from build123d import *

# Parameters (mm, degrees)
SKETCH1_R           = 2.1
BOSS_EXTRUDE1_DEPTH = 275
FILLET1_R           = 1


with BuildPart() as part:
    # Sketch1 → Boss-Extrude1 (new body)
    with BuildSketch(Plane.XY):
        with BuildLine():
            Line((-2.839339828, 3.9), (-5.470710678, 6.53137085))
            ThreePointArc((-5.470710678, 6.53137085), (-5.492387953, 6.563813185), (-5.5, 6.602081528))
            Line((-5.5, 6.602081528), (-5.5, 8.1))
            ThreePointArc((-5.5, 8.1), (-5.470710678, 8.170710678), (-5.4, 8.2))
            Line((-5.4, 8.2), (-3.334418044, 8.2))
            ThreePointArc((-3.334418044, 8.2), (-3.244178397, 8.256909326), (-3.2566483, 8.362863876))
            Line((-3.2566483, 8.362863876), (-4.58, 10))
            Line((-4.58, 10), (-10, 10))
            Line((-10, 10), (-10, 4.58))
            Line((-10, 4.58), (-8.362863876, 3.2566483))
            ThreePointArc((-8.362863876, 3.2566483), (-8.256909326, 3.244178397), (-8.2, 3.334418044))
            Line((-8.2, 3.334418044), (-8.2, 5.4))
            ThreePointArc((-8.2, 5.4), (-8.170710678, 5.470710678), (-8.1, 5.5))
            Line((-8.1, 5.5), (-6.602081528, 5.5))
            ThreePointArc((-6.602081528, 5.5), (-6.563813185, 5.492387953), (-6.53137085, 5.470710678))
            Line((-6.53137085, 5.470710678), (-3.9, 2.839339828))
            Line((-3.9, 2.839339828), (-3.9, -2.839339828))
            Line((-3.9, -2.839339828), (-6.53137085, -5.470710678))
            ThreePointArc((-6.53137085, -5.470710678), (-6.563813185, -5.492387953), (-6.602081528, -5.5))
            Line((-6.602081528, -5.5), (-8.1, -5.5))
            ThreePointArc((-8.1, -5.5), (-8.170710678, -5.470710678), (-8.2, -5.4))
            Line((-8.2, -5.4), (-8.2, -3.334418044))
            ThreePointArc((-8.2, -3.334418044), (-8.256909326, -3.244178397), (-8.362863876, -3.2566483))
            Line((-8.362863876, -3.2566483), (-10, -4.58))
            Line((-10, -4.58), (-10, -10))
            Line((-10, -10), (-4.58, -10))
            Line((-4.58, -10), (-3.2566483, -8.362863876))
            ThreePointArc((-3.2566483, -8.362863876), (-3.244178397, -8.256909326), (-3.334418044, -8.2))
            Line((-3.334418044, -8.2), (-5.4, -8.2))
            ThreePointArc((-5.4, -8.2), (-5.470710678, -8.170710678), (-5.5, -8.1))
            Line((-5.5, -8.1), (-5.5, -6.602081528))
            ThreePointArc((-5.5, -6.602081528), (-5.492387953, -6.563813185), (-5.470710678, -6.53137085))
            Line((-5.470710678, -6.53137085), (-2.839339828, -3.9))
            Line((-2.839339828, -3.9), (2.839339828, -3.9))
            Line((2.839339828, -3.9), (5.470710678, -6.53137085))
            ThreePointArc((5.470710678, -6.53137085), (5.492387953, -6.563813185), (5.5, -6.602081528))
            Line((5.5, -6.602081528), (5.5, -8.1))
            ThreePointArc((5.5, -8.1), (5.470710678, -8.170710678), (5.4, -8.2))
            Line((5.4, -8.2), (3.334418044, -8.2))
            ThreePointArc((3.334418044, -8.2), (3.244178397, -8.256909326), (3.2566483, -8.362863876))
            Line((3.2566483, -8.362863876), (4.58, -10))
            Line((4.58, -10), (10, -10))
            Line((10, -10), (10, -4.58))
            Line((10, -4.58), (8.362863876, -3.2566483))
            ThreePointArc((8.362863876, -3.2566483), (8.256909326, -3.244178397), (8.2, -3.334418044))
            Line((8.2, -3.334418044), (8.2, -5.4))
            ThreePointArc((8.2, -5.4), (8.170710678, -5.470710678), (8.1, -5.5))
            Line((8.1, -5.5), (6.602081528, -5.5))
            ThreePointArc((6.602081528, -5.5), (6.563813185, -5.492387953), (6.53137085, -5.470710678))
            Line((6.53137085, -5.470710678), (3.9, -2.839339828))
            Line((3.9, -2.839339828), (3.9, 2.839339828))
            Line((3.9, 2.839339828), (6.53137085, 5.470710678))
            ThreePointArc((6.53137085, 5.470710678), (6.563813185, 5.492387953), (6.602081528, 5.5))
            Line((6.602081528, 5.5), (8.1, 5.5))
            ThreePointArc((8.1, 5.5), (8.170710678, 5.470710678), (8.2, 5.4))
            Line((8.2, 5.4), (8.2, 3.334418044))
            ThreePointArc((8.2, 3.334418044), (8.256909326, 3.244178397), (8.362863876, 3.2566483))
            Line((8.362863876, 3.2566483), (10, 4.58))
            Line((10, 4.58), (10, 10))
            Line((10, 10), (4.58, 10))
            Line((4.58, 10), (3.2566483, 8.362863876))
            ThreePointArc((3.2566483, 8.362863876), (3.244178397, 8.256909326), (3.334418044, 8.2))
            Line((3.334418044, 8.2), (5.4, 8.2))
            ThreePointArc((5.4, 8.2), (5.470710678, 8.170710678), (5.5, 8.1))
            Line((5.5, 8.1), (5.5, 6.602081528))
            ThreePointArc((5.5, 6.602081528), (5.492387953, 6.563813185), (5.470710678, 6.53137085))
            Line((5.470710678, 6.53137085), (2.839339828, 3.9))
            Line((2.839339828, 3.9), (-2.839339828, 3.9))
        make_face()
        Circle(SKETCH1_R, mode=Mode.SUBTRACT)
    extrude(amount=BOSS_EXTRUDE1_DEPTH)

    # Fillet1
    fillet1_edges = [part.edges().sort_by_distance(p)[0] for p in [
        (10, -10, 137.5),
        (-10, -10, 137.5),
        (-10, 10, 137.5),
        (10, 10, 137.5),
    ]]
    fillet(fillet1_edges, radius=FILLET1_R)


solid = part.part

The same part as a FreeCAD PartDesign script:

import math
import FreeCAD as App
import Part
import Sketcher
from FreeCAD import Vector
Q = App.Units.Quantity


def edges_at(feature, points):
    """Names of the edges that pass closest to the given points."""
    edges = feature.Shape.Edges
    near = lambda p: min(range(len(edges)), key=lambda i: edges[i].distToShape(Part.Vertex(*p))[0])
    return sorted({f"Edge{near(p) + 1}" for p in points})

doc = App.newDocument("Part")
body = doc.addObject("PartDesign::Body", "Body")

sketch1 = body.newObject("Sketcher::SketchObject", "Sketch")
sketch1.AttachmentSupport = (doc.getObject("XY_Plane"), [""])
sketch1.MapMode = "FlatFace"
sketch1.addGeometry(Part.LineSegment(Vector(-2.84, 3.9, 0), Vector(-5.47, 6.53, 0)), False)
sketch1.addGeometry(Part.ArcOfCircle(Part.Circle(Vector(-5.4, 6.6, 0), Vector(0, 0, 1), 0.1), math.radians(-180), math.radians(-135)), False)
sketch1.addGeometry(Part.LineSegment(Vector(-5.5, 6.6, 0), Vector(-5.5, 8.1, 0)), False)
sketch1.addGeometry(Part.ArcOfCircle(Part.Circle(Vector(-5.4, 8.1, 0), Vector(0, 0, 1), 0.1), math.radians(90), math.radians(180)), False)
sketch1.addGeometry(Part.LineSegment(Vector(-5.4, 8.2, 0), Vector(-3.33, 8.2, 0)), False)
sketch1.addGeometry(Part.ArcOfCircle(Part.Circle(Vector(-3.33, 8.3, 0), Vector(0, 0, 1), 0.1), math.radians(-90), math.radians(39)), False)
sketch1.addGeometry(Part.LineSegment(Vector(-3.26, 8.36, 0), Vector(-4.58, 10, 0)), False)
sketch1.addGeometry(Part.LineSegment(Vector(-4.58, 10, 0), Vector(-10, 10, 0)), False)
sketch1.addGeometry(Part.LineSegment(Vector(-10, 10, 0), Vector(-10, 4.58, 0)), False)
sketch1.addGeometry(Part.LineSegment(Vector(-10, 4.58, 0), Vector(-8.36, 3.26, 0)), False)
sketch1.addGeometry(Part.ArcOfCircle(Part.Circle(Vector(-8.3, 3.33, 0), Vector(0, 0, 1), 0.1), math.radians(-129), math.radians(0)), False)
sketch1.addGeometry(Part.LineSegment(Vector(-8.2, 3.33, 0), Vector(-8.2, 5.4, 0)), False)
sketch1.addGeometry(Part.ArcOfCircle(Part.Circle(Vector(-8.1, 5.4, 0), Vector(0, 0, 1), 0.1), math.radians(90), math.radians(180)), False)
sketch1.addGeometry(Part.LineSegment(Vector(-8.1, 5.5, 0), Vector(-6.6, 5.5, 0)), False)
sketch1.addGeometry(Part.ArcOfCircle(Part.Circle(Vector(-6.6, 5.4, 0), Vector(0, 0, 1), 0.1), math.radians(45), math.radians(90)), False)
sketch1.addGeometry(Part.LineSegment(Vector(-6.53, 5.47, 0), Vector(-3.9, 2.84, 0)), False)
sketch1.addGeometry(Part.LineSegment(Vector(-3.9, 2.84, 0), Vector(-3.9, -2.84, 0)), False)
sketch1.addGeometry(Part.LineSegment(Vector(-3.9, -2.84, 0), Vector(-6.53, -5.47, 0)), False)
sketch1.addGeometry(Part.ArcOfCircle(Part.Circle(Vector(-6.6, -5.4, 0), Vector(0, 0, 1), 0.1), math.radians(-90), math.radians(-45)), False)
sketch1.addGeometry(Part.LineSegment(Vector(-6.6, -5.5, 0), Vector(-8.1, -5.5, 0)), False)
sketch1.addGeometry(Part.ArcOfCircle(Part.Circle(Vector(-8.1, -5.4, 0), Vector(0, 0, 1), 0.1), math.radians(180), math.radians(270)), False)
sketch1.addGeometry(Part.LineSegment(Vector(-8.2, -5.4, 0), Vector(-8.2, -3.33, 0)), False)
sketch1.addGeometry(Part.ArcOfCircle(Part.Circle(Vector(-8.3, -3.33, 0), Vector(0, 0, 1), 0.1), math.radians(0), math.radians(129)), False)
sketch1.addGeometry(Part.LineSegment(Vector(-8.36, -3.26, 0), Vector(-10, -4.58, 0)), False)
sketch1.addGeometry(Part.LineSegment(Vector(-10, -4.58, 0), Vector(-10, -10, 0)), False)
sketch1.addGeometry(Part.LineSegment(Vector(-10, -10, 0), Vector(-4.58, -10, 0)), False)
sketch1.addGeometry(Part.LineSegment(Vector(-4.58, -10, 0), Vector(-3.26, -8.36, 0)), False)
sketch1.addGeometry(Part.ArcOfCircle(Part.Circle(Vector(-3.33, -8.3, 0), Vector(0, 0, 1), 0.1), math.radians(-39), math.radians(90)), False)
sketch1.addGeometry(Part.LineSegment(Vector(-3.33, -8.2, 0), Vector(-5.4, -8.2, 0)), False)
sketch1.addGeometry(Part.ArcOfCircle(Part.Circle(Vector(-5.4, -8.1, 0), Vector(0, 0, 1), 0.1), math.radians(180), math.radians(270)), False)
sketch1.addGeometry(Part.LineSegment(Vector(-5.5, -8.1, 0), Vector(-5.5, -6.6, 0)), False)
sketch1.addGeometry(Part.ArcOfCircle(Part.Circle(Vector(-5.4, -6.6, 0), Vector(0, 0, 1), 0.1), math.radians(135), math.radians(180)), False)
sketch1.addGeometry(Part.LineSegment(Vector(-5.47, -6.53, 0), Vector(-2.84, -3.9, 0)), False)
sketch1.addGeometry(Part.LineSegment(Vector(-2.84, -3.9, 0), Vector(2.84, -3.9, 0)), False)
sketch1.addGeometry(Part.LineSegment(Vector(2.84, -3.9, 0), Vector(5.47, -6.53, 0)), False)
sketch1.addGeometry(Part.ArcOfCircle(Part.Circle(Vector(5.4, -6.6, 0), Vector(0, 0, 1), 0.1), math.radians(0), math.radians(45)), False)
sketch1.addGeometry(Part.LineSegment(Vector(5.5, -6.6, 0), Vector(5.5, -8.1, 0)), False)
sketch1.addGeometry(Part.ArcOfCircle(Part.Circle(Vector(5.4, -8.1, 0), Vector(0, 0, 1), 0.1), math.radians(-90), math.radians(0)), False)
sketch1.addGeometry(Part.LineSegment(Vector(5.4, -8.2, 0), Vector(3.33, -8.2, 0)), False)
sketch1.addGeometry(Part.ArcOfCircle(Part.Circle(Vector(3.33, -8.3, 0), Vector(0, 0, 1), 0.1), math.radians(90), math.radians(219)), False)
sketch1.addGeometry(Part.LineSegment(Vector(3.26, -8.36, 0), Vector(4.58, -10, 0)), False)
sketch1.addGeometry(Part.LineSegment(Vector(4.58, -10, 0), Vector(10, -10, 0)), False)
sketch1.addGeometry(Part.LineSegment(Vector(10, -10, 0), Vector(10, -4.58, 0)), False)
sketch1.addGeometry(Part.LineSegment(Vector(10, -4.58, 0), Vector(8.36, -3.26, 0)), False)
sketch1.addGeometry(Part.ArcOfCircle(Part.Circle(Vector(8.3, -3.33, 0), Vector(0, 0, 1), 0.1), math.radians(51), math.radians(180)), False)
sketch1.addGeometry(Part.LineSegment(Vector(8.2, -3.33, 0), Vector(8.2, -5.4, 0)), False)
sketch1.addGeometry(Part.ArcOfCircle(Part.Circle(Vector(8.1, -5.4, 0), Vector(0, 0, 1), 0.1), math.radians(-90), math.radians(0)), False)
sketch1.addGeometry(Part.LineSegment(Vector(8.1, -5.5, 0), Vector(6.6, -5.5, 0)), False)
sketch1.addGeometry(Part.ArcOfCircle(Part.Circle(Vector(6.6, -5.4, 0), Vector(0, 0, 1), 0.1), math.radians(-135), math.radians(-90)), False)
sketch1.addGeometry(Part.LineSegment(Vector(6.53, -5.47, 0), Vector(3.9, -2.84, 0)), False)
sketch1.addGeometry(Part.LineSegment(Vector(3.9, -2.84, 0), Vector(3.9, 2.84, 0)), False)
sketch1.addGeometry(Part.LineSegment(Vector(3.9, 2.84, 0), Vector(6.53, 5.47, 0)), False)
sketch1.addGeometry(Part.ArcOfCircle(Part.Circle(Vector(6.6, 5.4, 0), Vector(0, 0, 1), 0.1), math.radians(90), math.radians(135)), False)
sketch1.addGeometry(Part.LineSegment(Vector(6.6, 5.5, 0), Vector(8.1, 5.5, 0)), False)
sketch1.addGeometry(Part.ArcOfCircle(Part.Circle(Vector(8.1, 5.4, 0), Vector(0, 0, 1), 0.1), math.radians(0), math.radians(90)), False)
sketch1.addGeometry(Part.LineSegment(Vector(8.2, 5.4, 0), Vector(8.2, 3.33, 0)), False)
sketch1.addGeometry(Part.ArcOfCircle(Part.Circle(Vector(8.3, 3.33, 0), Vector(0, 0, 1), 0.1), math.radians(180), math.radians(309)), False)
sketch1.addGeometry(Part.LineSegment(Vector(8.36, 3.26, 0), Vector(10, 4.58, 0)), False)
sketch1.addGeometry(Part.LineSegment(Vector(10, 4.58, 0), Vector(10, 10, 0)), False)
sketch1.addGeometry(Part.LineSegment(Vector(10, 10, 0), Vector(4.58, 10, 0)), False)
sketch1.addGeometry(Part.LineSegment(Vector(4.58, 10, 0), Vector(3.26, 8.36, 0)), False)
sketch1.addGeometry(Part.ArcOfCircle(Part.Circle(Vector(3.33, 8.3, 0), Vector(0, 0, 1), 0.1), math.radians(141), math.radians(270)), False)
sketch1.addGeometry(Part.LineSegment(Vector(3.33, 8.2, 0), Vector(5.4, 8.2, 0)), False)
sketch1.addGeometry(Part.ArcOfCircle(Part.Circle(Vector(5.4, 8.1, 0), Vector(0, 0, 1), 0.1), math.radians(0), math.radians(90)), False)
sketch1.addGeometry(Part.LineSegment(Vector(5.5, 8.1, 0), Vector(5.5, 6.6, 0)), False)
sketch1.addGeometry(Part.ArcOfCircle(Part.Circle(Vector(5.4, 6.6, 0), Vector(0, 0, 1), 0.1), math.radians(-45), math.radians(0)), False)
sketch1.addGeometry(Part.LineSegment(Vector(5.47, 6.53, 0), Vector(2.84, 3.9, 0)), False)
sketch1.addGeometry(Part.LineSegment(Vector(2.84, 3.9, 0), Vector(-2.84, 3.9, 0)), False)
sketch1.addGeometry(Part.Circle(Vector(0, 0, 0), Vector(0, 0, 1), 2.1), False)
sketch1.addConstraint(Sketcher.Constraint("Tangent", 0, 2, 1, 2))
sketch1.addConstraint(Sketcher.Constraint("Tangent", 1, 1, 2, 1))
sketch1.addConstraint(Sketcher.Constraint("Tangent", 2, 2, 3, 2))
sketch1.addConstraint(Sketcher.Constraint("Tangent", 3, 1, 4, 1))
sketch1.addConstraint(Sketcher.Constraint("Tangent", 4, 2, 5, 1))
sketch1.addConstraint(Sketcher.Constraint("Tangent", 5, 2, 6, 1))
sketch1.addConstraint(Sketcher.Constraint("Coincident", 6, 2, 7, 1))
sketch1.addConstraint(Sketcher.Constraint("Coincident", 7, 2, 8, 1))
sketch1.addConstraint(Sketcher.Constraint("Coincident", 8, 2, 9, 1))
sketch1.addConstraint(Sketcher.Constraint("Tangent", 9, 2, 10, 1))
sketch1.addConstraint(Sketcher.Constraint("Tangent", 10, 2, 11, 1))
sketch1.addConstraint(Sketcher.Constraint("Tangent", 11, 2, 12, 2))
sketch1.addConstraint(Sketcher.Constraint("Tangent", 12, 1, 13, 1))
sketch1.addConstraint(Sketcher.Constraint("Tangent", 13, 2, 14, 2))
sketch1.addConstraint(Sketcher.Constraint("Tangent", 14, 1, 15, 1))
sketch1.addConstraint(Sketcher.Constraint("Coincident", 15, 2, 16, 1))
sketch1.addConstraint(Sketcher.Constraint("Coincident", 16, 2, 17, 1))
sketch1.addConstraint(Sketcher.Constraint("Tangent", 17, 2, 18, 2))
sketch1.addConstraint(Sketcher.Constraint("Tangent", 18, 1, 19, 1))
sketch1.addConstraint(Sketcher.Constraint("Tangent", 19, 2, 20, 2))
sketch1.addConstraint(Sketcher.Constraint("Tangent", 20, 1, 21, 1))
sketch1.addConstraint(Sketcher.Constraint("Tangent", 21, 2, 22, 1))
sketch1.addConstraint(Sketcher.Constraint("Tangent", 22, 2, 23, 1))
sketch1.addConstraint(Sketcher.Constraint("Coincident", 23, 2, 24, 1))
sketch1.addConstraint(Sketcher.Constraint("Coincident", 24, 2, 25, 1))
sketch1.addConstraint(Sketcher.Constraint("Coincident", 25, 2, 26, 1))
sketch1.addConstraint(Sketcher.Constraint("Tangent", 26, 2, 27, 1))
sketch1.addConstraint(Sketcher.Constraint("Tangent", 27, 2, 28, 1))
sketch1.addConstraint(Sketcher.Constraint("Tangent", 28, 2, 29, 2))
sketch1.addConstraint(Sketcher.Constraint("Tangent", 29, 1, 30, 1))
sketch1.addConstraint(Sketcher.Constraint("Tangent", 30, 2, 31, 2))
sketch1.addConstraint(Sketcher.Constraint("Tangent", 31, 1, 32, 1))
sketch1.addConstraint(Sketcher.Constraint("Coincident", 32, 2, 33, 1))
sketch1.addConstraint(Sketcher.Constraint("Coincident", 33, 2, 34, 1))
sketch1.addConstraint(Sketcher.Constraint("Tangent", 34, 2, 35, 2))
sketch1.addConstraint(Sketcher.Constraint("Tangent", 35, 1, 36, 1))
sketch1.addConstraint(Sketcher.Constraint("Tangent", 36, 2, 37, 2))
sketch1.addConstraint(Sketcher.Constraint("Tangent", 37, 1, 38, 1))
sketch1.addConstraint(Sketcher.Constraint("Tangent", 38, 2, 39, 1))
sketch1.addConstraint(Sketcher.Constraint("Tangent", 39, 2, 40, 1))
sketch1.addConstraint(Sketcher.Constraint("Coincident", 40, 2, 41, 1))
sketch1.addConstraint(Sketcher.Constraint("Coincident", 41, 2, 42, 1))
sketch1.addConstraint(Sketcher.Constraint("Coincident", 42, 2, 43, 1))
sketch1.addConstraint(Sketcher.Constraint("Tangent", 43, 2, 44, 1))
sketch1.addConstraint(Sketcher.Constraint("Tangent", 44, 2, 45, 1))
sketch1.addConstraint(Sketcher.Constraint("Tangent", 45, 2, 46, 2))
sketch1.addConstraint(Sketcher.Constraint("Tangent", 46, 1, 47, 1))
sketch1.addConstraint(Sketcher.Constraint("Tangent", 47, 2, 48, 2))
sketch1.addConstraint(Sketcher.Constraint("Tangent", 48, 1, 49, 1))
sketch1.addConstraint(Sketcher.Constraint("Coincident", 49, 2, 50, 1))
sketch1.addConstraint(Sketcher.Constraint("Coincident", 50, 2, 51, 1))
sketch1.addConstraint(Sketcher.Constraint("Tangent", 51, 2, 52, 2))
sketch1.addConstraint(Sketcher.Constraint("Tangent", 52, 1, 53, 1))
sketch1.addConstraint(Sketcher.Constraint("Tangent", 53, 2, 54, 2))
sketch1.addConstraint(Sketcher.Constraint("Tangent", 54, 1, 55, 1))
sketch1.addConstraint(Sketcher.Constraint("Tangent", 55, 2, 56, 1))
sketch1.addConstraint(Sketcher.Constraint("Tangent", 56, 2, 57, 1))
sketch1.addConstraint(Sketcher.Constraint("Coincident", 57, 2, 58, 1))
sketch1.addConstraint(Sketcher.Constraint("Coincident", 58, 2, 59, 1))
sketch1.addConstraint(Sketcher.Constraint("Coincident", 59, 2, 60, 1))
sketch1.addConstraint(Sketcher.Constraint("Tangent", 60, 2, 61, 1))
sketch1.addConstraint(Sketcher.Constraint("Tangent", 61, 2, 62, 1))
sketch1.addConstraint(Sketcher.Constraint("Tangent", 62, 2, 63, 2))
sketch1.addConstraint(Sketcher.Constraint("Tangent", 63, 1, 64, 1))
sketch1.addConstraint(Sketcher.Constraint("Tangent", 64, 2, 65, 2))
sketch1.addConstraint(Sketcher.Constraint("Tangent", 65, 1, 66, 1))
sketch1.addConstraint(Sketcher.Constraint("Coincident", 66, 2, 67, 1))
sketch1.addConstraint(Sketcher.Constraint("Coincident", 67, 2, 0, 1))
sketch1.addConstraint(Sketcher.Constraint("Vertical", 2))
sketch1.addConstraint(Sketcher.Constraint("Horizontal", 4))
sketch1.addConstraint(Sketcher.Constraint("Horizontal", 7))
sketch1.addConstraint(Sketcher.Constraint("Vertical", 8))
sketch1.addConstraint(Sketcher.Constraint("Vertical", 11))
sketch1.addConstraint(Sketcher.Constraint("Horizontal", 13))
sketch1.addConstraint(Sketcher.Constraint("Vertical", 16))
sketch1.addConstraint(Sketcher.Constraint("Horizontal", 19))
sketch1.addConstraint(Sketcher.Constraint("Vertical", 21))
sketch1.addConstraint(Sketcher.Constraint("Vertical", 24))
sketch1.addConstraint(Sketcher.Constraint("Horizontal", 25))
sketch1.addConstraint(Sketcher.Constraint("Horizontal", 28))
sketch1.addConstraint(Sketcher.Constraint("Vertical", 30))
sketch1.addConstraint(Sketcher.Constraint("Horizontal", 33))
sketch1.addConstraint(Sketcher.Constraint("Vertical", 36))
sketch1.addConstraint(Sketcher.Constraint("Horizontal", 38))
sketch1.addConstraint(Sketcher.Constraint("Horizontal", 41))
sketch1.addConstraint(Sketcher.Constraint("Vertical", 42))
sketch1.addConstraint(Sketcher.Constraint("Vertical", 45))
sketch1.addConstraint(Sketcher.Constraint("Horizontal", 47))
sketch1.addConstraint(Sketcher.Constraint("Vertical", 50))
sketch1.addConstraint(Sketcher.Constraint("Horizontal", 53))
sketch1.addConstraint(Sketcher.Constraint("Vertical", 55))
sketch1.addConstraint(Sketcher.Constraint("Vertical", 58))
sketch1.addConstraint(Sketcher.Constraint("Horizontal", 59))
sketch1.addConstraint(Sketcher.Constraint("Horizontal", 62))
sketch1.addConstraint(Sketcher.Constraint("Vertical", 64))
sketch1.addConstraint(Sketcher.Constraint("Horizontal", 67))
sketch1.addConstraint(Sketcher.Constraint("Coincident", 68, 3, -1, 1))
sketch1.addConstraint(Sketcher.Constraint("Equal", 1, 3))
sketch1.addConstraint(Sketcher.Constraint("Equal", 3, 5))
sketch1.addConstraint(Sketcher.Constraint("Equal", 5, 10))
sketch1.addConstraint(Sketcher.Constraint("Equal", 10, 12))
sketch1.addConstraint(Sketcher.Constraint("Equal", 12, 14))
sketch1.addConstraint(Sketcher.Constraint("Equal", 14, 18))
sketch1.addConstraint(Sketcher.Constraint("Equal", 18, 20))
sketch1.addConstraint(Sketcher.Constraint("Equal", 20, 22))
sketch1.addConstraint(Sketcher.Constraint("Equal", 22, 27))
sketch1.addConstraint(Sketcher.Constraint("Equal", 27, 29))
sketch1.addConstraint(Sketcher.Constraint("Equal", 29, 31))
sketch1.addConstraint(Sketcher.Constraint("Equal", 31, 35))
sketch1.addConstraint(Sketcher.Constraint("Equal", 35, 37))
sketch1.addConstraint(Sketcher.Constraint("Equal", 37, 39))
sketch1.addConstraint(Sketcher.Constraint("Equal", 39, 44))
sketch1.addConstraint(Sketcher.Constraint("Equal", 44, 46))
sketch1.addConstraint(Sketcher.Constraint("Equal", 46, 48))
sketch1.addConstraint(Sketcher.Constraint("Equal", 48, 52))
sketch1.addConstraint(Sketcher.Constraint("Equal", 52, 54))
sketch1.addConstraint(Sketcher.Constraint("Equal", 54, 56))
sketch1.addConstraint(Sketcher.Constraint("Equal", 56, 61))
sketch1.addConstraint(Sketcher.Constraint("Equal", 61, 63))
sketch1.addConstraint(Sketcher.Constraint("Equal", 63, 65))
sketch1.addConstraint(Sketcher.Constraint("Symmetric", 1, 3, 35, 3, -1, 1))
sketch1.addConstraint(Sketcher.Constraint("Symmetric", 5, 3, 39, 3, -1, 1))
sketch1.addConstraint(Sketcher.Constraint("Symmetric", 10, 3, 44, 3, -1, 1))
sketch1.addConstraint(Sketcher.Constraint("Symmetric", 14, 3, 48, 3, -1, 1))
sketch1.addConstraint(Sketcher.Constraint("Symmetric", 18, 3, 52, 3, -1, 1))
sketch1.addConstraint(Sketcher.Constraint("Symmetric", 22, 3, 56, 3, -1, 1))
sketch1.addConstraint(Sketcher.Constraint("Symmetric", 27, 3, 61, 3, -1, 1))
sketch1.addConstraint(Sketcher.Constraint("Symmetric", 31, 3, 65, 3, -1, 1))
sketch1.addConstraint(Sketcher.Constraint("Symmetric", 6, 2, 40, 2, -1, 1))
sketch1.addConstraint(Sketcher.Constraint("Symmetric", 8, 2, 42, 2, -1, 1))
sketch1.addConstraint(Sketcher.Constraint("Symmetric", 15, 2, 49, 2, -1, 1))
sketch1.addConstraint(Sketcher.Constraint("Symmetric", 23, 2, 57, 2, -1, 1))
sketch1.addConstraint(Sketcher.Constraint("Symmetric", 25, 2, 59, 2, -1, 1))
sketch1.addConstraint(Sketcher.Constraint("Symmetric", 32, 2, 66, 2, -1, 1))
sketch1.addConstraint(Sketcher.Constraint("Symmetric", 31, 3, 35, 3, -2))
sketch1.addConstraint(Sketcher.Constraint("Symmetric", 27, 3, 39, 3, -2))
sketch1.addConstraint(Sketcher.Constraint("Symmetric", 22, 3, 44, 3, -2))
sketch1.addConstraint(Sketcher.Constraint("Symmetric", 18, 3, 48, 3, -2))
sketch1.addConstraint(Sketcher.Constraint("Symmetric", 25, 2, 40, 2, -2))
sketch1.addConstraint(Sketcher.Constraint("Symmetric", 23, 2, 42, 2, -2))
sketch1.addConstraint(Sketcher.Constraint("Parallel", 0, 15))
sketch1.addConstraint(Sketcher.Constraint("Perpendicular", 15, 17))
sketch1.addConstraint(Sketcher.Constraint("Perpendicular", 6, 23))
sketch1.addConstraint(Sketcher.Constraint("Parallel", 17, 32))
sketch1.addConstraint(Sketcher.Constraint("Perpendicular", 32, 34))
sketch1.addConstraint(Sketcher.Constraint("Perpendicular", 49, 51))
sketch1.addConstraint(Sketcher.Constraint("Horizontal", 31, 1, 34, 2))
sketch1.addConstraint(Sketcher.Constraint("Equal", 53, 2))
sketch1.addConstraint(Sketcher.Constraint("Equal", 59, 8))
sketch1.addConstraint(Sketcher.Constraint("Equal", 62, 11))
sketch1.addConstraint(Sketcher.Constraint("Equal", 67, 16))
sketch1.addConstraint(Sketcher.Constraint("Equal", 6, 9))
sketch1.addConstraint(Sketcher.Constraint("Equal", 0, 15))
sketch1.addConstraint(Sketcher.Constraint("Diameter", 68, Q("4.2 mm")))
sketch1.addConstraint(Sketcher.Constraint("Radius", 1, Q("0.1 mm")))
sketch1.addConstraint(Sketcher.Constraint("DistanceY", -1, 1, 6, 2, Q("10 mm")))
sketch1.addConstraint(Sketcher.Constraint("DistanceX", 7, 2, 7, 1, Q("5.42 mm")))
sketch1.addConstraint(Sketcher.Constraint("DistanceX", 1, 3, -1, 1, Q("5.4 mm")))
sketch1.addConstraint(Sketcher.Constraint("DistanceY", -1, 1, 3, 3, Q("8.1 mm")))
sketch1.addConstraint(Sketcher.Constraint("DistanceX", 15, 2, -1, 1, Q("3.9 mm")))
sketch1.addConstraint(Sketcher.Constraint("DistanceX", 4, 1, 4, 2, Q("2.065582 mm")))
sketch1.addConstraint(Sketcher.Constraint("DistanceX", 13, 1, 13, 2, Q("1.497918 mm")))
pad1 = body.newObject("PartDesign::Pad", "Pad")
pad1.Profile = sketch1
pad1.Length = 275
doc.recompute()

fillet = body.newObject("PartDesign::Fillet", "Fillet")
fillet.Base = (pad1, edges_at(pad1, [
    (10, -10, 137.5),
    (-10, -10, 137.5),
    (-10, 10, 137.5),
    (10, 10, 137.5),
]))
fillet.Radius = 1

doc.recompute()
